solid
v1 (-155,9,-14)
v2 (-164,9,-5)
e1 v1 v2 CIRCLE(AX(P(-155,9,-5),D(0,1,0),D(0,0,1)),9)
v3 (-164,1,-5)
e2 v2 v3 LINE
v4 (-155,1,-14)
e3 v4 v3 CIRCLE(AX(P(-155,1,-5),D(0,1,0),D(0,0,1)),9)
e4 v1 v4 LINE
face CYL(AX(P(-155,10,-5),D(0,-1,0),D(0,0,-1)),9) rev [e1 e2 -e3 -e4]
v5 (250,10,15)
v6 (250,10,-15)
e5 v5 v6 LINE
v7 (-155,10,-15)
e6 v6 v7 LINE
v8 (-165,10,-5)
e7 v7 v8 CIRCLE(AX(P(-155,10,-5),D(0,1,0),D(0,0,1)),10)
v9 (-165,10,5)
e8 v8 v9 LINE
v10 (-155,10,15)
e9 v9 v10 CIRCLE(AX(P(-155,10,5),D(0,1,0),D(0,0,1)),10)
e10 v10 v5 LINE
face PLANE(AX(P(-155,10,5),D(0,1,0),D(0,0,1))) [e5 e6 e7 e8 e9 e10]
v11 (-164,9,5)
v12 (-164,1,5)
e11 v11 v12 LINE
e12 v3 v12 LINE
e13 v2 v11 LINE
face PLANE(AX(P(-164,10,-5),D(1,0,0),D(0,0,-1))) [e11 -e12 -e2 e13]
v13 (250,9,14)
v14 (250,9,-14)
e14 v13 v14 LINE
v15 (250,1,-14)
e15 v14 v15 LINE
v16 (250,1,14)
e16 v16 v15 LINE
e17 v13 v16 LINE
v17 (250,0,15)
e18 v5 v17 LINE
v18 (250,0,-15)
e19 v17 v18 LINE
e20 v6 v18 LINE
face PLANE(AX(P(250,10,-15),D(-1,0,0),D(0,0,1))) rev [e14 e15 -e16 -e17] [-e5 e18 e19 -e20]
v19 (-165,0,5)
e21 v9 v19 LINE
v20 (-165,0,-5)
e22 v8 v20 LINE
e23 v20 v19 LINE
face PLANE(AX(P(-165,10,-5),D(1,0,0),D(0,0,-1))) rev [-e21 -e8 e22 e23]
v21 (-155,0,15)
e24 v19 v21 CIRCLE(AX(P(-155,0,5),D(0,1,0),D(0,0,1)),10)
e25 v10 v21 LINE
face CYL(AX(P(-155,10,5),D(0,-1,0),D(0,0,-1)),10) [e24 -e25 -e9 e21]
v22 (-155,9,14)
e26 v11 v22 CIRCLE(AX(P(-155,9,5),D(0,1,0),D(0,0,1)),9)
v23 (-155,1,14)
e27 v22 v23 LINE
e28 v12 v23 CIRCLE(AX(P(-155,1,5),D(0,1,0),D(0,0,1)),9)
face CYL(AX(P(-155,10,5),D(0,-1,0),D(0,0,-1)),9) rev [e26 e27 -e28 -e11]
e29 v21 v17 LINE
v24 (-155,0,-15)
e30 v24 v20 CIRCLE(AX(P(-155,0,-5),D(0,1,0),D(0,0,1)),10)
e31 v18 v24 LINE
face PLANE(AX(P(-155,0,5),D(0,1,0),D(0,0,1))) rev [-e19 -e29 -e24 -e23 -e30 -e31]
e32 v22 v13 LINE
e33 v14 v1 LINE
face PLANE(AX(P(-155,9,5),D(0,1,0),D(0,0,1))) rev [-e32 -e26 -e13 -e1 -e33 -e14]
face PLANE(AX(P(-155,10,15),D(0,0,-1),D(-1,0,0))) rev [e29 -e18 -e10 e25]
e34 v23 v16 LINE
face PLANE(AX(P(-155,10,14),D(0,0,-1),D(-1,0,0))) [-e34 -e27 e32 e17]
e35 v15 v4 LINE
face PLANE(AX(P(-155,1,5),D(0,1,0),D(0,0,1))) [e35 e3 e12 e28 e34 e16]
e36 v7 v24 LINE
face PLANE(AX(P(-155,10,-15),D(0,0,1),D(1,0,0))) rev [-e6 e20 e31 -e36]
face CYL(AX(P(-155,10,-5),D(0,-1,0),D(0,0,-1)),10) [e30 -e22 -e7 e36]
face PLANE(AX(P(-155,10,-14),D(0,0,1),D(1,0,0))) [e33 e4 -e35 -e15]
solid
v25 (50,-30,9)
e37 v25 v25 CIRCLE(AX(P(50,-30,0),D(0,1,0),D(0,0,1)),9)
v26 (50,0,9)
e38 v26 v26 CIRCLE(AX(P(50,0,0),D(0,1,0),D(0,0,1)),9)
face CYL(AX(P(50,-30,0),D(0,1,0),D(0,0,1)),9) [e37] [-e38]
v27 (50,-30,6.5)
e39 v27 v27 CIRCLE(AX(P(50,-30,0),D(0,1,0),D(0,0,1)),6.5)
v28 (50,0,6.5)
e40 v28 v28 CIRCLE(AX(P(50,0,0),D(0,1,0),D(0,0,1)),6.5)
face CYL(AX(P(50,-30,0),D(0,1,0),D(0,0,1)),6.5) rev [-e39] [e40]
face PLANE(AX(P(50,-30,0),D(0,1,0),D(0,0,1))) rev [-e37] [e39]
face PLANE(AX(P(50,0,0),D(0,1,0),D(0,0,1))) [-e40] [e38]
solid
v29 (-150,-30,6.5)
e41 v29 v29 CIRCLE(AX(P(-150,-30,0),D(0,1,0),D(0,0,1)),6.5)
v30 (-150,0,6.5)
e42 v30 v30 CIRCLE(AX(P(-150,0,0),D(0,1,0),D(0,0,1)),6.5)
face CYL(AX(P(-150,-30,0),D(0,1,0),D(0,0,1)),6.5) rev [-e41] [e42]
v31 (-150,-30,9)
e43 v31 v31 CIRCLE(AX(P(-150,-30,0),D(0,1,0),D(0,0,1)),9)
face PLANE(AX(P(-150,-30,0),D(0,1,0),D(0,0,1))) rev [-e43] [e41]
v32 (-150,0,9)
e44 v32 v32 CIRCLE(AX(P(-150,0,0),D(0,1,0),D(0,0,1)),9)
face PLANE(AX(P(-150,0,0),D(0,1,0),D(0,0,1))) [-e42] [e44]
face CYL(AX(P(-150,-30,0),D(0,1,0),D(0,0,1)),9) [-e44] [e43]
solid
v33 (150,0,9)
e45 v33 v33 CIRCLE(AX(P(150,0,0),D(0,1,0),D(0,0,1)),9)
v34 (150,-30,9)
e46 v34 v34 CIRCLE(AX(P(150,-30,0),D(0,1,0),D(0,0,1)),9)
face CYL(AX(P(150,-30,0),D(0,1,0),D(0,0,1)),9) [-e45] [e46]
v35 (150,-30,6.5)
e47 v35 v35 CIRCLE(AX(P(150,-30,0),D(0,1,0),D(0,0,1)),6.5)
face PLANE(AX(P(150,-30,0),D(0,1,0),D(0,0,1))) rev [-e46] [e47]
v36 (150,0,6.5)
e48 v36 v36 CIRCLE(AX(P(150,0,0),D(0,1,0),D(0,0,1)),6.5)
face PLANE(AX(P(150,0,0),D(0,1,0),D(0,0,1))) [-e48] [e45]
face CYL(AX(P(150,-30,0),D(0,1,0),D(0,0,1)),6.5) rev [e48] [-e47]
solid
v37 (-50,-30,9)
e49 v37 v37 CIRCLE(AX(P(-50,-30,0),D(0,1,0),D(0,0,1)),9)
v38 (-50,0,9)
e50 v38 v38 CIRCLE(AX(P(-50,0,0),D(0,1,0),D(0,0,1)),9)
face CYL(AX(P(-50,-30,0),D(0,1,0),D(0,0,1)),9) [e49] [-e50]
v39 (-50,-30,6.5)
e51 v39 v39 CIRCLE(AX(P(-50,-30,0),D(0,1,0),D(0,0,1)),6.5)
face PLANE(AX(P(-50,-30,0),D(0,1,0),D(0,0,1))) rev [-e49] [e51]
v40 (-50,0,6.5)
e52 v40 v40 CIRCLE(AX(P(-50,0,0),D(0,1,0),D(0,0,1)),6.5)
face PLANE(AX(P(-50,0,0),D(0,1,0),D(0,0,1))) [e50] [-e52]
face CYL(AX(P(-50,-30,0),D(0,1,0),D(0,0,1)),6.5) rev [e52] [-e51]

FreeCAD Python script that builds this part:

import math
import FreeCAD as App
import Part
import Sketcher

V = App.Vector


def faces_at(feature, points):
    """Names of the faces that lie closest to the given points."""
    faces = feature.Shape.Faces
    near = lambda p: min(range(len(faces)), key=lambda i: faces[i].distToShape(Part.Vertex(*p))[0])
    return sorted({f"Face{near(p) + 1}" for p in points})

doc = App.newDocument("Part")
body = doc.addObject("PartDesign::Body", "Body")

# Sketch on XZ plane
sketch1 = body.newObject("Sketcher::SketchObject", "Sketch")
sketch1.AttachmentSupport = (doc.getObject("XZ_Plane"), [""])
sketch1.MapMode = "FlatFace"
sketch1.addGeometry([
    Part.Circle(V(-150, 0, 0), V(0, 0, 1), 9),
    Part.Circle(V(-150, 0, 0), V(0, 0, 1), 6.5),
], False)
sketch1.addConstraint([
    Sketcher.Constraint("Coincident", 1, 3, 0, 3),
    Sketcher.Constraint("PointOnObject", 0, 3, -1),
    Sketcher.Constraint("Diameter", 0, 18.0),
    Sketcher.Constraint("Diameter", 1, 13.0),
    Sketcher.Constraint("DistanceX", 0, 3, -1, 1, 150.0),
])
pad1 = body.newObject("PartDesign::Pad", "Pad")
pad1.Profile = sketch1
pad1.Length = 30
body2 = doc.addObject("PartDesign::Body", "Body001")

# Sketch on XZ plane
sketch2 = body2.newObject("Sketcher::SketchObject", "Sketch001")
sketch2.AttachmentSupport = (doc.getObject("XZ_Plane001"), [""])
sketch2.MapMode = "FlatFace"
sketch2.addGeometry([
    Part.Circle(V(-50, 0, 0), V(0, 0, 1), 9),
    Part.Circle(V(-50, 0, 0), V(0, 0, 1), 6.5),
], False)
sketch2.addConstraint([
    Sketcher.Constraint("Coincident", 1, 3, 0, 3),
    Sketcher.Constraint("PointOnObject", 0, 3, -1),
    Sketcher.Constraint("Diameter", 0, 18.0),
    Sketcher.Constraint("Diameter", 1, 13.0),
    Sketcher.Constraint("DistanceX", 0, 3, -1, 1, 50.0),
])
pad2 = body2.newObject("PartDesign::Pad", "Pad001")
pad2.Profile = sketch2
pad2.Length = 30
body3 = doc.addObject("PartDesign::Body", "Body002")

# Sketch on XZ plane
sketch3 = body3.newObject("Sketcher::SketchObject", "Sketch002")
sketch3.AttachmentSupport = (doc.getObject("XZ_Plane002"), [""])
sketch3.MapMode = "FlatFace"
sketch3.addGeometry([
    Part.Circle(V(50, 0, 0), V(0, 0, 1), 9),
    Part.Circle(V(50, 0, 0), V(0, 0, 1), 6.5),
], False)
sketch3.addConstraint([
    Sketcher.Constraint("Coincident", 1, 3, 0, 3),
    Sketcher.Constraint("PointOnObject", 0, 3, -1),
    Sketcher.Constraint("Diameter", 0, 18.0),
    Sketcher.Constraint("Diameter", 1, 13.0),
    Sketcher.Constraint("DistanceX", -1, 1, 0, 3, 50.0),
])
pad3 = body3.newObject("PartDesign::Pad", "Pad002")
pad3.Profile = sketch3
pad3.Length = 30
body4 = doc.addObject("PartDesign::Body", "Body003")

# Sketch on XZ plane
sketch4 = body4.newObject("Sketcher::SketchObject", "Sketch003")
sketch4.AttachmentSupport = (doc.getObject("XZ_Plane003"), [""])
sketch4.MapMode = "FlatFace"
sketch4.addGeometry([
    Part.Circle(V(150, 0, 0), V(0, 0, 1), 9),
    Part.Circle(V(150, 0, 0), V(0, 0, 1), 6.5),
], False)
sketch4.addConstraint([
    Sketcher.Constraint("Coincident", 1, 3, 0, 3),
    Sketcher.Constraint("PointOnObject", 0, 3, -1),
    Sketcher.Constraint("Diameter", 0, 18.0),
    Sketcher.Constraint("Diameter", 1, 13.0),
    Sketcher.Constraint("DistanceX", -1, 1, 0, 3, 150.0),
])
pad4 = body4.newObject("PartDesign::Pad", "Pad003")
pad4.Profile = sketch4
pad4.Length = 30
body5 = doc.addObject("PartDesign::Body", "Body004")

# Sketch on XZ plane
sketch5 = body5.newObject("Sketcher::SketchObject", "Sketch004")
sketch5.AttachmentSupport = (doc.getObject("XZ_Plane004"), [""])
sketch5.MapMode = "FlatFace"
sketch5.addGeometry([
    Part.LineSegment(V(250, -15, 0), V(-155, -15, 0)),  # 0
    Part.ArcOfCircle(Part.Circle(V(-155, -5, 0), V(0, 0, 1), 10), math.radians(180), math.radians(270)),  # 1
    Part.LineSegment(V(-165, -5, 0), V(-165, 5, 0)),  # 2
    Part.ArcOfCircle(Part.Circle(V(-155, 5, 0), V(0, 0, 1), 10), math.radians(90), math.radians(180)),  # 3
    Part.LineSegment(V(-155, 15, 0), V(250, 15, 0)),  # 4
    Part.LineSegment(V(250, 15, 0), V(250, -15, 0)),  # 5
], False)
sketch5.addConstraint([
    Sketcher.Constraint("Tangent", 0, 2, 1, 2),
    Sketcher.Constraint("Tangent", 1, 1, 2, 1),
    Sketcher.Constraint("Tangent", 2, 2, 3, 2),
    Sketcher.Constraint("Tangent", 3, 1, 4, 1),
    Sketcher.Constraint("Coincident", 4, 2, 5, 1),
    Sketcher.Constraint("Coincident", 5, 2, 0, 1),
    Sketcher.Constraint("Horizontal", 0),
    Sketcher.Constraint("Vertical", 2),
    Sketcher.Constraint("Horizontal", 4),
    Sketcher.Constraint("Vertical", 5),
    Sketcher.Constraint("Equal", 1, 3),
    Sketcher.Constraint("Radius", 1, 10.0),
    Sketcher.Constraint("DistanceX", 0, 2, 0, 1, 405.0),
    Sketcher.Constraint("DistanceY", 2, 1, 2, 2, 10.0),
    Sketcher.Constraint("DistanceX", 1, 3, -1, 1, 155.0),
    Sketcher.Constraint("DistanceY", 1, 3, -1, 1, 5.0),
])
pad5 = body5.newObject("PartDesign::Pad", "Pad004")
pad5.Profile = sketch5
pad5.Length = 10
pad5.Reversed = True
doc.recompute()

thickness = body5.newObject("PartDesign::Thickness", "Thickness")
thickness.Base = (pad5, faces_at(pad5, [(250, 5, 0)]))
thickness.Value = 1
thickness.Reversed = True
thickness.Join = "Intersection"

doc.recompute()
